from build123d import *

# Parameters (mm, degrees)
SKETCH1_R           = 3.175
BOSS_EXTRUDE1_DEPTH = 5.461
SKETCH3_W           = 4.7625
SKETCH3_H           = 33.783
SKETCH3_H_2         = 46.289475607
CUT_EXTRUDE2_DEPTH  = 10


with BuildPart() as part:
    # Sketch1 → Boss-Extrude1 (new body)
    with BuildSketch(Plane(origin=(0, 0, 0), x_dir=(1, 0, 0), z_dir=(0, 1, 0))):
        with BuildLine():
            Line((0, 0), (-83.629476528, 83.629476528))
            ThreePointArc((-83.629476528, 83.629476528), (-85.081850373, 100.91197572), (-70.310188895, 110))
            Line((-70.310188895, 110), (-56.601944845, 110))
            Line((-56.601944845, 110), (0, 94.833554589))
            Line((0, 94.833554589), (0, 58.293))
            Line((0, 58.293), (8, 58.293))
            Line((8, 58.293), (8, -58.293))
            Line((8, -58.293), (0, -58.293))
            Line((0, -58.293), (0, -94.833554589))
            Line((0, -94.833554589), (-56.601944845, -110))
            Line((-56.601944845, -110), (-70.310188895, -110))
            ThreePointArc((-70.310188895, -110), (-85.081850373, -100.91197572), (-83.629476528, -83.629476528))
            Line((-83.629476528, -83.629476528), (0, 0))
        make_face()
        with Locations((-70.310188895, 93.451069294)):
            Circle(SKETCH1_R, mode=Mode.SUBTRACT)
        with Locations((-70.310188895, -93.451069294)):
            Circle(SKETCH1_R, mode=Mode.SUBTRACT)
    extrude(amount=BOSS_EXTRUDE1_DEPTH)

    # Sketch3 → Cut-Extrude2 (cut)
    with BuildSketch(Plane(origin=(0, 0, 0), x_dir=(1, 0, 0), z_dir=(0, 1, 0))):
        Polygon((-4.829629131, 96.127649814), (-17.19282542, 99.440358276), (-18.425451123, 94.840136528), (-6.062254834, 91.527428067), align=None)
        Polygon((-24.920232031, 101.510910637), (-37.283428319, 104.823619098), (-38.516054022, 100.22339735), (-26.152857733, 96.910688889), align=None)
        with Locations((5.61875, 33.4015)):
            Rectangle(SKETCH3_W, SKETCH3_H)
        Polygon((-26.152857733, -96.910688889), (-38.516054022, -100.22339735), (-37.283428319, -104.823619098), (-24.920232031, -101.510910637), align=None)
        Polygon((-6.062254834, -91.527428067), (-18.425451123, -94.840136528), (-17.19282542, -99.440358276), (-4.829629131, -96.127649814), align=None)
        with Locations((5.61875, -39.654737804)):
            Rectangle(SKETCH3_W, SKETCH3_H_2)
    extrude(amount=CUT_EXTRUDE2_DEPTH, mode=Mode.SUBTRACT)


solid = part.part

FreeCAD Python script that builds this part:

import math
import FreeCAD as App
import Part
import Sketcher

V = App.Vector
Q = App.Units.Quantity

doc = App.newDocument("Part")
body = doc.addObject("PartDesign::Body", "Body")

sketch1 = doc.addObject("Sketcher::SketchObject", "Sketch")
body.addObject(sketch1)
sketch1.AttachmentSupport = (doc.XZ_Plane, [""])
sketch1.MapMode = "FlatFace"
sketch1.addGeometry(Part.LineSegment(V(-83.6, -83.6, 0), V(0, 0, 0)), False)
sketch1.addGeometry(Part.LineSegment(V(0, 0, 0), V(-83.6, 83.6, 0)), False)
sketch1.addGeometry(Part.ArcOfCircle(Part.Circle(V(-70.3, 93.5, 0), V(0, 0, 1), 16.5), math.radians(90), math.radians(216)), False)
sketch1.addGeometry(Part.LineSegment(V(-70.3, 110, 0), V(-56.6, 110, 0)), False)
sketch1.addGeometry(Part.LineSegment(V(-56.6, 110, 0), V(0, 94.8, 0)), False)
sketch1.addGeometry(Part.LineSegment(V(0, 94.8, 0), V(0, 58.3, 0)), False)
sketch1.addGeometry(Part.LineSegment(V(0, 58.3, 0), V(8, 58.3, 0)), False)
sketch1.addGeometry(Part.LineSegment(V(8, 58.3, 0), V(8, -58.3, 0)), False)
sketch1.addGeometry(Part.LineSegment(V(8, -58.3, 0), V(0, -58.3, 0)), False)
sketch1.addGeometry(Part.LineSegment(V(0, -58.3, 0), V(0, -94.8, 0)), False)
sketch1.addGeometry(Part.LineSegment(V(0, -94.8, 0), V(-56.6, -110, 0)), False)
sketch1.addGeometry(Part.LineSegment(V(-56.6, -110, 0), V(-70.3, -110, 0)), False)
sketch1.addGeometry(Part.ArcOfCircle(Part.Circle(V(-70.3, -93.5, 0), V(0, 0, 1), 16.5), math.radians(144), math.radians(270)), False)
sketch1.addGeometry(Part.Circle(V(-70.3, 93.5, 0), V(0, 0, 1), 3.2), False)
sketch1.addGeometry(Part.Circle(V(-70.3, -93.5, 0), V(0, 0, 1), 3.2), False)
sketch1.addConstraint(Sketcher.Constraint("Coincident", 0, 2, 1, 1))
sketch1.addConstraint(Sketcher.Constraint("Coincident", 1, 2, 2, 2))
sketch1.addConstraint(Sketcher.Constraint("Tangent", 2, 1, 3, 1))
sketch1.addConstraint(Sketcher.Constraint("Coincident", 3, 2, 4, 1))
sketch1.addConstraint(Sketcher.Constraint("Coincident", 4, 2, 5, 1))
sketch1.addConstraint(Sketcher.Constraint("Coincident", 5, 2, 6, 1))
sketch1.addConstraint(Sketcher.Constraint("Coincident", 6, 2, 7, 1))
sketch1.addConstraint(Sketcher.Constraint("Coincident", 7, 2, 8, 1))
sketch1.addConstraint(Sketcher.Constraint("Coincident", 8, 2, 9, 1))
sketch1.addConstraint(Sketcher.Constraint("Coincident", 9, 2, 10, 1))
sketch1.addConstraint(Sketcher.Constraint("Coincident", 10, 2, 11, 1))
sketch1.addConstraint(Sketcher.Constraint("Tangent", 11, 2, 12, 2))
sketch1.addConstraint(Sketcher.Constraint("Coincident", 12, 1, 0, 1))
sketch1.addConstraint(Sketcher.Constraint("Horizontal", 3))
sketch1.addConstraint(Sketcher.Constraint("Vertical", 5))
sketch1.addConstraint(Sketcher.Constraint("Horizontal", 6))
sketch1.addConstraint(Sketcher.Constraint("Vertical", 7))
sketch1.addConstraint(Sketcher.Constraint("Horizontal", 8))
sketch1.addConstraint(Sketcher.Constraint("Vertical", 9))
sketch1.addConstraint(Sketcher.Constraint("Horizontal", 11))
sketch1.addConstraint(Sketcher.Constraint("Coincident", 0, 2, -1, 1))
sketch1.addConstraint(Sketcher.Constraint("Coincident", 13, 3, 2, 3))
sketch1.addConstraint(Sketcher.Constraint("Coincident", 14, 3, 12, 3))
sketch1.addConstraint(Sketcher.Constraint("Equal", 2, 12))
sketch1.addConstraint(Sketcher.Constraint("Equal", 13, 14))
sketch1.addConstraint(Sketcher.Constraint("Symmetric", 5, 2, 8, 2, -1, 1))
sketch1.addConstraint(Sketcher.Constraint("Symmetric", 2, 3, 12, 3, -1))
sketch1.addConstraint(Sketcher.Constraint("Symmetric", 4, 2, 9, 2, -1))
sketch1.addConstraint(Sketcher.Constraint("Perpendicular", 0, 1))
sketch1.addConstraint(Sketcher.Constraint("Vertical", 3, 2, 10, 2))
sketch1.addConstraint(Sketcher.Constraint("Vertical", 1, 2, 12, 1))
sketch1.addConstraint(Sketcher.Constraint("Diameter", 13, Q("0.25 in")))
sketch1.addConstraint(Sketcher.Constraint("Angle", 4, Q("-15 deg")))
sketch1.addConstraint(Sketcher.Constraint("DistanceY", 7, 2, 7, 1, Q("4.59 in")))
sketch1.addConstraint(Sketcher.Constraint("Radius", 2, Q("16.548931 mm")))
sketch1.addConstraint(Sketcher.Constraint("DistanceX", 6, 1, 6, 2, Q("8 mm")))
sketch1.addConstraint(Sketcher.Constraint("DistanceY", -1, 1, 2, 1, Q("110 mm")))
sketch1.addConstraint(Sketcher.Constraint("Distance", 0, Q("118.26994 mm")))
sketch1.addConstraint(Sketcher.Constraint("DistanceX", 3, 1, 3, 2, Q("13.708244 mm")))
pad1 = doc.addObject("PartDesign::Pad", "Pad")
body.addObject(pad1)
pad1.Profile = sketch1
pad1.Length = Q("0.215 in")
pad1.Reversed = True

sketch2 = doc.addObject("Sketcher::SketchObject", "Sketch001")
body.addObject(sketch2)
sketch2.AttachmentSupport = (doc.XZ_Plane, [""])
sketch2.MapMode = "FlatFace"
sketch2.addGeometry(Part.LineSegment(V(-4.8, -96.1, 0), V(-17.2, -99.4, 0)), False)
sketch2.addGeometry(Part.LineSegment(V(-17.2, -99.4, 0), V(-18.4, -94.8, 0)), False)
sketch2.addGeometry(Part.LineSegment(V(-18.4, -94.8, 0), V(-6.1, -91.5, 0)), False)
sketch2.addGeometry(Part.LineSegment(V(-6.1, -91.5, 0), V(-4.8, -96.1, 0)), False)
sketch2.addGeometry(Part.LineSegment(V(-24.9, -101.5, 0), V(-37.3, -104.8, 0)), False)
sketch2.addGeometry(Part.LineSegment(V(-37.3, -104.8, 0), V(-38.5, -100.2, 0)), False)
sketch2.addGeometry(Part.LineSegment(V(-38.5, -100.2, 0), V(-26.2, -96.9, 0)), False)
sketch2.addGeometry(Part.LineSegment(V(-26.2, -96.9, 0), V(-24.9, -101.5, 0)), False)
sketch2.addGeometry(Part.LineSegment(V(3.2, -50.3, 0), V(3.2, -16.5, 0)), False)
sketch2.addGeometry(Part.LineSegment(V(3.2, -16.5, 0), V(8, -16.5, 0)), False)
sketch2.addGeometry(Part.LineSegment(V(8, -16.5, 0), V(8, -50.3, 0)), False)
sketch2.addGeometry(Part.LineSegment(V(8, -50.3, 0), V(3.2, -50.3, 0)), False)
sketch2.addGeometry(Part.LineSegment(V(-26.2, 96.9, 0), V(-38.5, 100.2, 0)), False)
sketch2.addGeometry(Part.LineSegment(V(-38.5, 100.2, 0), V(-37.3, 104.8, 0)), False)
sketch2.addGeometry(Part.LineSegment(V(-37.3, 104.8, 0), V(-24.9, 101.5, 0)), False)
sketch2.addGeometry(Part.LineSegment(V(-24.9, 101.5, 0), V(-26.2, 96.9, 0)), False)
sketch2.addGeometry(Part.LineSegment(V(-6.1, 91.5, 0), V(-18.4, 94.8, 0)), False)
sketch2.addGeometry(Part.LineSegment(V(-18.4, 94.8, 0), V(-17.2, 99.4, 0)), False)
sketch2.addGeometry(Part.LineSegment(V(-17.2, 99.4, 0), V(-4.8, 96.1, 0)), False)
sketch2.addGeometry(Part.LineSegment(V(-4.8, 96.1, 0), V(-6.1, 91.5, 0)), False)
sketch2.addGeometry(Part.LineSegment(V(3.2, 16.5, 0), V(3.2, 62.8, 0)), False)
sketch2.addGeometry(Part.LineSegment(V(3.2, 62.8, 0), V(8, 62.8, 0)), False)
sketch2.addGeometry(Part.LineSegment(V(8, 62.8, 0), V(8, 16.5, 0)), False)
sketch2.addGeometry(Part.LineSegment(V(8, 16.5, 0), V(3.2, 16.5, 0)), False)
sketch2.addConstraint(Sketcher.Constraint("Coincident", 0, 2, 1, 1))
sketch2.addConstraint(Sketcher.Constraint("Coincident", 1, 2, 2, 1))
sketch2.addConstraint(Sketcher.Constraint("Coincident", 2, 2, 3, 1))
sketch2.addConstraint(Sketcher.Constraint("Coincident", 3, 2, 0, 1))
sketch2.addConstraint(Sketcher.Constraint("Coincident", 4, 2, 5, 1))
sketch2.addConstraint(Sketcher.Constraint("Coincident", 5, 2, 6, 1))
sketch2.addConstraint(Sketcher.Constraint("Coincident", 6, 2, 7, 1))
sketch2.addConstraint(Sketcher.Constraint("Coincident", 7, 2, 4, 1))
sketch2.addConstraint(Sketcher.Constraint("Coincident", 8, 2, 9, 1))
sketch2.addConstraint(Sketcher.Constraint("Coincident", 9, 2, 10, 1))
sketch2.addConstraint(Sketcher.Constraint("Coincident", 10, 2, 11, 1))
sketch2.addConstraint(Sketcher.Constraint("Coincident", 11, 2, 8, 1))
sketch2.addConstraint(Sketcher.Constraint("Coincident", 12, 2, 13, 1))
sketch2.addConstraint(Sketcher.Constraint("Coincident", 13, 2, 14, 1))
sketch2.addConstraint(Sketcher.Constraint("Coincident", 14, 2, 15, 1))
sketch2.addConstraint(Sketcher.Constraint("Coincident", 15, 2, 12, 1))
sketch2.addConstraint(Sketcher.Constraint("Coincident", 16, 2, 17, 1))
sketch2.addConstraint(Sketcher.Constraint("Coincident", 17, 2, 18, 1))
sketch2.addConstraint(Sketcher.Constraint("Coincident", 18, 2, 19, 1))
sketch2.addConstraint(Sketcher.Constraint("Coincident", 19, 2, 16, 1))
sketch2.addConstraint(Sketcher.Constraint("Coincident", 20, 2, 21, 1))
sketch2.addConstraint(Sketcher.Constraint("Coincident", 21, 2, 22, 1))
sketch2.addConstraint(Sketcher.Constraint("Coincident", 22, 2, 23, 1))
sketch2.addConstraint(Sketcher.Constraint("Coincident", 23, 2, 20, 1))
sketch2.addConstraint(Sketcher.Constraint("Vertical", 8))
sketch2.addConstraint(Sketcher.Constraint("Horizontal", 9))
sketch2.addConstraint(Sketcher.Constraint("Vertical", 10))
sketch2.addConstraint(Sketcher.Constraint("Horizontal", 11))
sketch2.addConstraint(Sketcher.Constraint("Vertical", 20))
sketch2.addConstraint(Sketcher.Constraint("Horizontal", 21))
sketch2.addConstraint(Sketcher.Constraint("Vertical", 22))
sketch2.addConstraint(Sketcher.Constraint("Horizontal", 23))
sketch2.addConstraint(Sketcher.Constraint("Symmetric", 5, 2, 12, 2, -1))
sketch2.addConstraint(Sketcher.Constraint("Symmetric", 4, 2, 13, 2, -1))
sketch2.addConstraint(Sketcher.Constraint("Symmetric", 7, 2, 14, 2, -1))
sketch2.addConstraint(Sketcher.Constraint("Symmetric", 6, 2, 15, 2, -1))
sketch2.addConstraint(Sketcher.Constraint("Symmetric", 1, 2, 16, 2, -1))
sketch2.addConstraint(Sketcher.Constraint("Symmetric", 0, 2, 17, 2, -1))
sketch2.addConstraint(Sketcher.Constraint("Symmetric", 3, 2, 18, 2, -1))
sketch2.addConstraint(Sketcher.Constraint("Symmetric", 2, 2, 19, 2, -1))
sketch2.addConstraint(Sketcher.Constraint("Symmetric", 9, 2, 22, 2, -1))
sketch2.addConstraint(Sketcher.Constraint("Perpendicular", 0, 1))
sketch2.addConstraint(Sketcher.Constraint("Perpendicular", 1, 2))
sketch2.addConstraint(Sketcher.Constraint("Perpendicular", 2, 3))
sketch2.addConstraint(Sketcher.Constraint("Perpendicular", 3, 4))
sketch2.addConstraint(Sketcher.Constraint("Perpendicular", 4, 5))
sketch2.addConstraint(Sketcher.Constraint("Perpendicular", 5, 6))
sketch2.addConstraint(Sketcher.Constraint("Perpendicular", 6, 7))
sketch2.addConstraint(Sketcher.Constraint("Vertical", 11, 2, 20, 2))
sketch2.addConstraint(Sketcher.Constraint("Equal", 2, 4))
sketch2.addConstraint(Sketcher.Constraint("Equal", 3, 5))
sketch2.addConstraint(Sketcher.Constraint("Angle", 0, Q("-165 deg")))
sketch2.addConstraint(Sketcher.Constraint("DistanceY", 9, 2, 22, 2, Q("1.3 in")))
sketch2.addConstraint(Sketcher.Constraint("DistanceX", 9, 1, 9, 2, Q("0.1875 in")))
sketch2.addConstraint(Sketcher.Constraint("Distance", 1, Q("0.1875 in")))
sketch2.addConstraint(Sketcher.Constraint("DistanceY", 8, 1, 8, 2, Q("33.783 mm")))
sketch2.addConstraint(Sketcher.Constraint("DistanceX", 7, 2, 1, 2, Q("0.2557 in")))
sketch2.addConstraint(Sketcher.Constraint("DistanceX", -1, 1, 8, 2, Q("3.2375 mm")))
sketch2.addConstraint(Sketcher.Constraint("DistanceX", 4, 2, 3, 2, Q("32.453799 mm")))
sketch2.addConstraint(Sketcher.Constraint("DistanceY", 20, 1, 20, 2, Q("46.289476 mm")))
sketch2.addConstraint(Sketcher.Constraint("DistanceY", 0, 2, -1, 1, Q("99.440358 mm")))
sketch2.addConstraint(Sketcher.Constraint("DistanceX", 1, 2, -1, 1, Q("18.425451 mm")))
sketch2.addConstraint(Sketcher.Constraint("DistanceY", 4, 2, -1, 1, Q("104.823619 mm")))
pocket1 = doc.addObject("PartDesign::Pocket", "Pocket")
body.addObject(pocket1)
pocket1.Profile = sketch2
pocket1.Length = 10

doc.recompute()
